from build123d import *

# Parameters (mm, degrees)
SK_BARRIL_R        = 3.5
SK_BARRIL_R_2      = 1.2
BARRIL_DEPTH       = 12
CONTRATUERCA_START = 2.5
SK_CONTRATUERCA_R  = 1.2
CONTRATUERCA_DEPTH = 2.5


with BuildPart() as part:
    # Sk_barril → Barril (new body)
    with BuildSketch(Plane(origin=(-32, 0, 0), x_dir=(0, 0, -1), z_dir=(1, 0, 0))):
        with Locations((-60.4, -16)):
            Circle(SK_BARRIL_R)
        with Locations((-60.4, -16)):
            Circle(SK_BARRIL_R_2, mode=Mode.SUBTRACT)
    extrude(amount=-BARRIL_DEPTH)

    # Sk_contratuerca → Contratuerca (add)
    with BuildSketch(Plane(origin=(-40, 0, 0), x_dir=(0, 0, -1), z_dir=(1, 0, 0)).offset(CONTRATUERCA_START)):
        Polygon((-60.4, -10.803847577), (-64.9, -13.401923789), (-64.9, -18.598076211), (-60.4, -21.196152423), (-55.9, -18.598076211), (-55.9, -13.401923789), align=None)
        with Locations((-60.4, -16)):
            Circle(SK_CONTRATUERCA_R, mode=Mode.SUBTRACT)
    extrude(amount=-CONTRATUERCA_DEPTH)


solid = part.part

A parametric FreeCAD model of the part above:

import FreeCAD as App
import Part
import Sketcher
from FreeCAD import Vector
Q = App.Units.Quantity


def add_polygon(sketch, points):
    """Adds a closed chain of lines whose ends are joined by coincident constraints."""
    first, n = sketch.GeometryCount, len(points)
    for a, b in zip(points, points[1:] + points[:1]):
        sketch.addGeometry(Part.LineSegment(App.Vector(*a, 0), App.Vector(*b, 0)), False)
    for i in range(n):
        sketch.addConstraint(Sketcher.Constraint("Coincident", first + i, 2, first + (i + 1) % n, 1))

doc = App.newDocument("Part")
body = doc.addObject("PartDesign::Body", "Body")

# Sketch on YZ plane
sketch1 = body.newObject("Sketcher::SketchObject", "Sketch")
sketch1.AttachmentSupport = (doc.getObject("YZ_Plane"), [""])
sketch1.MapMode = "FlatFace"
sketch1.AttachmentOffset = App.Placement(Vector(0, 0, -32), App.Rotation())
sketch1.addGeometry([
    Part.Circle(Vector(-16, 60.4, 0), Vector(0, 0, 1), 3.5),
    Part.Circle(Vector(-16, 60.4, 0), Vector(0, 0, 1), 1.2),
], False)
sketch1.addConstraint([
    Sketcher.Constraint("Coincident", 1, 3, 0, 3),
    Sketcher.Constraint("Diameter", 0, Q("7 mm")),
    Sketcher.Constraint("Diameter", 1, Q("2.4 mm")),
    Sketcher.Constraint("DistanceX", 0, 3, -1, 1, Q("16 mm")),
    Sketcher.Constraint("DistanceY", -1, 1, 0, 3, Q("60.4 mm")),
])
pad1 = body.newObject("PartDesign::Pad", "Pad")
pad1.Profile = sketch1
pad1.Length = 12
pad1.Reversed = True

# Sketch on YZ plane
sketch2 = body.newObject("Sketcher::SketchObject", "Sketch001")
sketch2.AttachmentSupport = (doc.getObject("YZ_Plane"), [""])
sketch2.MapMode = "FlatFace"
sketch2.AttachmentOffset = App.Placement(Vector(0, 0, -37.5), App.Rotation())
add_polygon(sketch2, [(-10.803848, 60.4), (-13.401924, 64.9), (-18.598076, 64.9), (-21.196152, 60.4), (-18.598076, 55.9), (-13.401924, 55.9)])  # lines 0-5
sketch2.addGeometry(Part.Circle(Vector(-16, 60.4, 0), Vector(0, 0, 1), 1.2), False)  # 6
sketch2.addConstraint([
    Sketcher.Constraint("Horizontal", 1),
    Sketcher.Constraint("Horizontal", 4),
    Sketcher.Constraint("Parallel", 0, 3),
    Sketcher.Constraint("Parallel", 2, 5),
    Sketcher.Constraint("Horizontal", 6, 3, 2, 2),
    Sketcher.Constraint("Horizontal", 2, 2, 5, 2),
    Sketcher.Constraint("Vertical", 1, 2, 3, 2),
    Sketcher.Constraint("Vertical", 0, 2, 4, 2),
    Sketcher.Constraint("Diameter", 6, Q("2.4 mm")),
    Sketcher.Constraint("Angle", 0, Q("120 deg")),
    Sketcher.Constraint("DistanceX", 6, 3, -1, 1, Q("16 mm")),
    Sketcher.Constraint("DistanceY", 3, 2, 1, 2, Q("9 mm")),
    Sketcher.Constraint("DistanceY", -1, 1, 6, 3, Q("60.4 mm")),
    Sketcher.Constraint("DistanceX", 1, 2, 1, 1, Q("5.196152 mm")),
    Sketcher.Constraint("DistanceX", 0, 2, -1, 1, Q("13.401924 mm")),
])
pad2 = body.newObject("PartDesign::Pad", "Pad001")
pad2.Profile = sketch2
pad2.Length = 2.5
pad2.Reversed = True

doc.recompute()
